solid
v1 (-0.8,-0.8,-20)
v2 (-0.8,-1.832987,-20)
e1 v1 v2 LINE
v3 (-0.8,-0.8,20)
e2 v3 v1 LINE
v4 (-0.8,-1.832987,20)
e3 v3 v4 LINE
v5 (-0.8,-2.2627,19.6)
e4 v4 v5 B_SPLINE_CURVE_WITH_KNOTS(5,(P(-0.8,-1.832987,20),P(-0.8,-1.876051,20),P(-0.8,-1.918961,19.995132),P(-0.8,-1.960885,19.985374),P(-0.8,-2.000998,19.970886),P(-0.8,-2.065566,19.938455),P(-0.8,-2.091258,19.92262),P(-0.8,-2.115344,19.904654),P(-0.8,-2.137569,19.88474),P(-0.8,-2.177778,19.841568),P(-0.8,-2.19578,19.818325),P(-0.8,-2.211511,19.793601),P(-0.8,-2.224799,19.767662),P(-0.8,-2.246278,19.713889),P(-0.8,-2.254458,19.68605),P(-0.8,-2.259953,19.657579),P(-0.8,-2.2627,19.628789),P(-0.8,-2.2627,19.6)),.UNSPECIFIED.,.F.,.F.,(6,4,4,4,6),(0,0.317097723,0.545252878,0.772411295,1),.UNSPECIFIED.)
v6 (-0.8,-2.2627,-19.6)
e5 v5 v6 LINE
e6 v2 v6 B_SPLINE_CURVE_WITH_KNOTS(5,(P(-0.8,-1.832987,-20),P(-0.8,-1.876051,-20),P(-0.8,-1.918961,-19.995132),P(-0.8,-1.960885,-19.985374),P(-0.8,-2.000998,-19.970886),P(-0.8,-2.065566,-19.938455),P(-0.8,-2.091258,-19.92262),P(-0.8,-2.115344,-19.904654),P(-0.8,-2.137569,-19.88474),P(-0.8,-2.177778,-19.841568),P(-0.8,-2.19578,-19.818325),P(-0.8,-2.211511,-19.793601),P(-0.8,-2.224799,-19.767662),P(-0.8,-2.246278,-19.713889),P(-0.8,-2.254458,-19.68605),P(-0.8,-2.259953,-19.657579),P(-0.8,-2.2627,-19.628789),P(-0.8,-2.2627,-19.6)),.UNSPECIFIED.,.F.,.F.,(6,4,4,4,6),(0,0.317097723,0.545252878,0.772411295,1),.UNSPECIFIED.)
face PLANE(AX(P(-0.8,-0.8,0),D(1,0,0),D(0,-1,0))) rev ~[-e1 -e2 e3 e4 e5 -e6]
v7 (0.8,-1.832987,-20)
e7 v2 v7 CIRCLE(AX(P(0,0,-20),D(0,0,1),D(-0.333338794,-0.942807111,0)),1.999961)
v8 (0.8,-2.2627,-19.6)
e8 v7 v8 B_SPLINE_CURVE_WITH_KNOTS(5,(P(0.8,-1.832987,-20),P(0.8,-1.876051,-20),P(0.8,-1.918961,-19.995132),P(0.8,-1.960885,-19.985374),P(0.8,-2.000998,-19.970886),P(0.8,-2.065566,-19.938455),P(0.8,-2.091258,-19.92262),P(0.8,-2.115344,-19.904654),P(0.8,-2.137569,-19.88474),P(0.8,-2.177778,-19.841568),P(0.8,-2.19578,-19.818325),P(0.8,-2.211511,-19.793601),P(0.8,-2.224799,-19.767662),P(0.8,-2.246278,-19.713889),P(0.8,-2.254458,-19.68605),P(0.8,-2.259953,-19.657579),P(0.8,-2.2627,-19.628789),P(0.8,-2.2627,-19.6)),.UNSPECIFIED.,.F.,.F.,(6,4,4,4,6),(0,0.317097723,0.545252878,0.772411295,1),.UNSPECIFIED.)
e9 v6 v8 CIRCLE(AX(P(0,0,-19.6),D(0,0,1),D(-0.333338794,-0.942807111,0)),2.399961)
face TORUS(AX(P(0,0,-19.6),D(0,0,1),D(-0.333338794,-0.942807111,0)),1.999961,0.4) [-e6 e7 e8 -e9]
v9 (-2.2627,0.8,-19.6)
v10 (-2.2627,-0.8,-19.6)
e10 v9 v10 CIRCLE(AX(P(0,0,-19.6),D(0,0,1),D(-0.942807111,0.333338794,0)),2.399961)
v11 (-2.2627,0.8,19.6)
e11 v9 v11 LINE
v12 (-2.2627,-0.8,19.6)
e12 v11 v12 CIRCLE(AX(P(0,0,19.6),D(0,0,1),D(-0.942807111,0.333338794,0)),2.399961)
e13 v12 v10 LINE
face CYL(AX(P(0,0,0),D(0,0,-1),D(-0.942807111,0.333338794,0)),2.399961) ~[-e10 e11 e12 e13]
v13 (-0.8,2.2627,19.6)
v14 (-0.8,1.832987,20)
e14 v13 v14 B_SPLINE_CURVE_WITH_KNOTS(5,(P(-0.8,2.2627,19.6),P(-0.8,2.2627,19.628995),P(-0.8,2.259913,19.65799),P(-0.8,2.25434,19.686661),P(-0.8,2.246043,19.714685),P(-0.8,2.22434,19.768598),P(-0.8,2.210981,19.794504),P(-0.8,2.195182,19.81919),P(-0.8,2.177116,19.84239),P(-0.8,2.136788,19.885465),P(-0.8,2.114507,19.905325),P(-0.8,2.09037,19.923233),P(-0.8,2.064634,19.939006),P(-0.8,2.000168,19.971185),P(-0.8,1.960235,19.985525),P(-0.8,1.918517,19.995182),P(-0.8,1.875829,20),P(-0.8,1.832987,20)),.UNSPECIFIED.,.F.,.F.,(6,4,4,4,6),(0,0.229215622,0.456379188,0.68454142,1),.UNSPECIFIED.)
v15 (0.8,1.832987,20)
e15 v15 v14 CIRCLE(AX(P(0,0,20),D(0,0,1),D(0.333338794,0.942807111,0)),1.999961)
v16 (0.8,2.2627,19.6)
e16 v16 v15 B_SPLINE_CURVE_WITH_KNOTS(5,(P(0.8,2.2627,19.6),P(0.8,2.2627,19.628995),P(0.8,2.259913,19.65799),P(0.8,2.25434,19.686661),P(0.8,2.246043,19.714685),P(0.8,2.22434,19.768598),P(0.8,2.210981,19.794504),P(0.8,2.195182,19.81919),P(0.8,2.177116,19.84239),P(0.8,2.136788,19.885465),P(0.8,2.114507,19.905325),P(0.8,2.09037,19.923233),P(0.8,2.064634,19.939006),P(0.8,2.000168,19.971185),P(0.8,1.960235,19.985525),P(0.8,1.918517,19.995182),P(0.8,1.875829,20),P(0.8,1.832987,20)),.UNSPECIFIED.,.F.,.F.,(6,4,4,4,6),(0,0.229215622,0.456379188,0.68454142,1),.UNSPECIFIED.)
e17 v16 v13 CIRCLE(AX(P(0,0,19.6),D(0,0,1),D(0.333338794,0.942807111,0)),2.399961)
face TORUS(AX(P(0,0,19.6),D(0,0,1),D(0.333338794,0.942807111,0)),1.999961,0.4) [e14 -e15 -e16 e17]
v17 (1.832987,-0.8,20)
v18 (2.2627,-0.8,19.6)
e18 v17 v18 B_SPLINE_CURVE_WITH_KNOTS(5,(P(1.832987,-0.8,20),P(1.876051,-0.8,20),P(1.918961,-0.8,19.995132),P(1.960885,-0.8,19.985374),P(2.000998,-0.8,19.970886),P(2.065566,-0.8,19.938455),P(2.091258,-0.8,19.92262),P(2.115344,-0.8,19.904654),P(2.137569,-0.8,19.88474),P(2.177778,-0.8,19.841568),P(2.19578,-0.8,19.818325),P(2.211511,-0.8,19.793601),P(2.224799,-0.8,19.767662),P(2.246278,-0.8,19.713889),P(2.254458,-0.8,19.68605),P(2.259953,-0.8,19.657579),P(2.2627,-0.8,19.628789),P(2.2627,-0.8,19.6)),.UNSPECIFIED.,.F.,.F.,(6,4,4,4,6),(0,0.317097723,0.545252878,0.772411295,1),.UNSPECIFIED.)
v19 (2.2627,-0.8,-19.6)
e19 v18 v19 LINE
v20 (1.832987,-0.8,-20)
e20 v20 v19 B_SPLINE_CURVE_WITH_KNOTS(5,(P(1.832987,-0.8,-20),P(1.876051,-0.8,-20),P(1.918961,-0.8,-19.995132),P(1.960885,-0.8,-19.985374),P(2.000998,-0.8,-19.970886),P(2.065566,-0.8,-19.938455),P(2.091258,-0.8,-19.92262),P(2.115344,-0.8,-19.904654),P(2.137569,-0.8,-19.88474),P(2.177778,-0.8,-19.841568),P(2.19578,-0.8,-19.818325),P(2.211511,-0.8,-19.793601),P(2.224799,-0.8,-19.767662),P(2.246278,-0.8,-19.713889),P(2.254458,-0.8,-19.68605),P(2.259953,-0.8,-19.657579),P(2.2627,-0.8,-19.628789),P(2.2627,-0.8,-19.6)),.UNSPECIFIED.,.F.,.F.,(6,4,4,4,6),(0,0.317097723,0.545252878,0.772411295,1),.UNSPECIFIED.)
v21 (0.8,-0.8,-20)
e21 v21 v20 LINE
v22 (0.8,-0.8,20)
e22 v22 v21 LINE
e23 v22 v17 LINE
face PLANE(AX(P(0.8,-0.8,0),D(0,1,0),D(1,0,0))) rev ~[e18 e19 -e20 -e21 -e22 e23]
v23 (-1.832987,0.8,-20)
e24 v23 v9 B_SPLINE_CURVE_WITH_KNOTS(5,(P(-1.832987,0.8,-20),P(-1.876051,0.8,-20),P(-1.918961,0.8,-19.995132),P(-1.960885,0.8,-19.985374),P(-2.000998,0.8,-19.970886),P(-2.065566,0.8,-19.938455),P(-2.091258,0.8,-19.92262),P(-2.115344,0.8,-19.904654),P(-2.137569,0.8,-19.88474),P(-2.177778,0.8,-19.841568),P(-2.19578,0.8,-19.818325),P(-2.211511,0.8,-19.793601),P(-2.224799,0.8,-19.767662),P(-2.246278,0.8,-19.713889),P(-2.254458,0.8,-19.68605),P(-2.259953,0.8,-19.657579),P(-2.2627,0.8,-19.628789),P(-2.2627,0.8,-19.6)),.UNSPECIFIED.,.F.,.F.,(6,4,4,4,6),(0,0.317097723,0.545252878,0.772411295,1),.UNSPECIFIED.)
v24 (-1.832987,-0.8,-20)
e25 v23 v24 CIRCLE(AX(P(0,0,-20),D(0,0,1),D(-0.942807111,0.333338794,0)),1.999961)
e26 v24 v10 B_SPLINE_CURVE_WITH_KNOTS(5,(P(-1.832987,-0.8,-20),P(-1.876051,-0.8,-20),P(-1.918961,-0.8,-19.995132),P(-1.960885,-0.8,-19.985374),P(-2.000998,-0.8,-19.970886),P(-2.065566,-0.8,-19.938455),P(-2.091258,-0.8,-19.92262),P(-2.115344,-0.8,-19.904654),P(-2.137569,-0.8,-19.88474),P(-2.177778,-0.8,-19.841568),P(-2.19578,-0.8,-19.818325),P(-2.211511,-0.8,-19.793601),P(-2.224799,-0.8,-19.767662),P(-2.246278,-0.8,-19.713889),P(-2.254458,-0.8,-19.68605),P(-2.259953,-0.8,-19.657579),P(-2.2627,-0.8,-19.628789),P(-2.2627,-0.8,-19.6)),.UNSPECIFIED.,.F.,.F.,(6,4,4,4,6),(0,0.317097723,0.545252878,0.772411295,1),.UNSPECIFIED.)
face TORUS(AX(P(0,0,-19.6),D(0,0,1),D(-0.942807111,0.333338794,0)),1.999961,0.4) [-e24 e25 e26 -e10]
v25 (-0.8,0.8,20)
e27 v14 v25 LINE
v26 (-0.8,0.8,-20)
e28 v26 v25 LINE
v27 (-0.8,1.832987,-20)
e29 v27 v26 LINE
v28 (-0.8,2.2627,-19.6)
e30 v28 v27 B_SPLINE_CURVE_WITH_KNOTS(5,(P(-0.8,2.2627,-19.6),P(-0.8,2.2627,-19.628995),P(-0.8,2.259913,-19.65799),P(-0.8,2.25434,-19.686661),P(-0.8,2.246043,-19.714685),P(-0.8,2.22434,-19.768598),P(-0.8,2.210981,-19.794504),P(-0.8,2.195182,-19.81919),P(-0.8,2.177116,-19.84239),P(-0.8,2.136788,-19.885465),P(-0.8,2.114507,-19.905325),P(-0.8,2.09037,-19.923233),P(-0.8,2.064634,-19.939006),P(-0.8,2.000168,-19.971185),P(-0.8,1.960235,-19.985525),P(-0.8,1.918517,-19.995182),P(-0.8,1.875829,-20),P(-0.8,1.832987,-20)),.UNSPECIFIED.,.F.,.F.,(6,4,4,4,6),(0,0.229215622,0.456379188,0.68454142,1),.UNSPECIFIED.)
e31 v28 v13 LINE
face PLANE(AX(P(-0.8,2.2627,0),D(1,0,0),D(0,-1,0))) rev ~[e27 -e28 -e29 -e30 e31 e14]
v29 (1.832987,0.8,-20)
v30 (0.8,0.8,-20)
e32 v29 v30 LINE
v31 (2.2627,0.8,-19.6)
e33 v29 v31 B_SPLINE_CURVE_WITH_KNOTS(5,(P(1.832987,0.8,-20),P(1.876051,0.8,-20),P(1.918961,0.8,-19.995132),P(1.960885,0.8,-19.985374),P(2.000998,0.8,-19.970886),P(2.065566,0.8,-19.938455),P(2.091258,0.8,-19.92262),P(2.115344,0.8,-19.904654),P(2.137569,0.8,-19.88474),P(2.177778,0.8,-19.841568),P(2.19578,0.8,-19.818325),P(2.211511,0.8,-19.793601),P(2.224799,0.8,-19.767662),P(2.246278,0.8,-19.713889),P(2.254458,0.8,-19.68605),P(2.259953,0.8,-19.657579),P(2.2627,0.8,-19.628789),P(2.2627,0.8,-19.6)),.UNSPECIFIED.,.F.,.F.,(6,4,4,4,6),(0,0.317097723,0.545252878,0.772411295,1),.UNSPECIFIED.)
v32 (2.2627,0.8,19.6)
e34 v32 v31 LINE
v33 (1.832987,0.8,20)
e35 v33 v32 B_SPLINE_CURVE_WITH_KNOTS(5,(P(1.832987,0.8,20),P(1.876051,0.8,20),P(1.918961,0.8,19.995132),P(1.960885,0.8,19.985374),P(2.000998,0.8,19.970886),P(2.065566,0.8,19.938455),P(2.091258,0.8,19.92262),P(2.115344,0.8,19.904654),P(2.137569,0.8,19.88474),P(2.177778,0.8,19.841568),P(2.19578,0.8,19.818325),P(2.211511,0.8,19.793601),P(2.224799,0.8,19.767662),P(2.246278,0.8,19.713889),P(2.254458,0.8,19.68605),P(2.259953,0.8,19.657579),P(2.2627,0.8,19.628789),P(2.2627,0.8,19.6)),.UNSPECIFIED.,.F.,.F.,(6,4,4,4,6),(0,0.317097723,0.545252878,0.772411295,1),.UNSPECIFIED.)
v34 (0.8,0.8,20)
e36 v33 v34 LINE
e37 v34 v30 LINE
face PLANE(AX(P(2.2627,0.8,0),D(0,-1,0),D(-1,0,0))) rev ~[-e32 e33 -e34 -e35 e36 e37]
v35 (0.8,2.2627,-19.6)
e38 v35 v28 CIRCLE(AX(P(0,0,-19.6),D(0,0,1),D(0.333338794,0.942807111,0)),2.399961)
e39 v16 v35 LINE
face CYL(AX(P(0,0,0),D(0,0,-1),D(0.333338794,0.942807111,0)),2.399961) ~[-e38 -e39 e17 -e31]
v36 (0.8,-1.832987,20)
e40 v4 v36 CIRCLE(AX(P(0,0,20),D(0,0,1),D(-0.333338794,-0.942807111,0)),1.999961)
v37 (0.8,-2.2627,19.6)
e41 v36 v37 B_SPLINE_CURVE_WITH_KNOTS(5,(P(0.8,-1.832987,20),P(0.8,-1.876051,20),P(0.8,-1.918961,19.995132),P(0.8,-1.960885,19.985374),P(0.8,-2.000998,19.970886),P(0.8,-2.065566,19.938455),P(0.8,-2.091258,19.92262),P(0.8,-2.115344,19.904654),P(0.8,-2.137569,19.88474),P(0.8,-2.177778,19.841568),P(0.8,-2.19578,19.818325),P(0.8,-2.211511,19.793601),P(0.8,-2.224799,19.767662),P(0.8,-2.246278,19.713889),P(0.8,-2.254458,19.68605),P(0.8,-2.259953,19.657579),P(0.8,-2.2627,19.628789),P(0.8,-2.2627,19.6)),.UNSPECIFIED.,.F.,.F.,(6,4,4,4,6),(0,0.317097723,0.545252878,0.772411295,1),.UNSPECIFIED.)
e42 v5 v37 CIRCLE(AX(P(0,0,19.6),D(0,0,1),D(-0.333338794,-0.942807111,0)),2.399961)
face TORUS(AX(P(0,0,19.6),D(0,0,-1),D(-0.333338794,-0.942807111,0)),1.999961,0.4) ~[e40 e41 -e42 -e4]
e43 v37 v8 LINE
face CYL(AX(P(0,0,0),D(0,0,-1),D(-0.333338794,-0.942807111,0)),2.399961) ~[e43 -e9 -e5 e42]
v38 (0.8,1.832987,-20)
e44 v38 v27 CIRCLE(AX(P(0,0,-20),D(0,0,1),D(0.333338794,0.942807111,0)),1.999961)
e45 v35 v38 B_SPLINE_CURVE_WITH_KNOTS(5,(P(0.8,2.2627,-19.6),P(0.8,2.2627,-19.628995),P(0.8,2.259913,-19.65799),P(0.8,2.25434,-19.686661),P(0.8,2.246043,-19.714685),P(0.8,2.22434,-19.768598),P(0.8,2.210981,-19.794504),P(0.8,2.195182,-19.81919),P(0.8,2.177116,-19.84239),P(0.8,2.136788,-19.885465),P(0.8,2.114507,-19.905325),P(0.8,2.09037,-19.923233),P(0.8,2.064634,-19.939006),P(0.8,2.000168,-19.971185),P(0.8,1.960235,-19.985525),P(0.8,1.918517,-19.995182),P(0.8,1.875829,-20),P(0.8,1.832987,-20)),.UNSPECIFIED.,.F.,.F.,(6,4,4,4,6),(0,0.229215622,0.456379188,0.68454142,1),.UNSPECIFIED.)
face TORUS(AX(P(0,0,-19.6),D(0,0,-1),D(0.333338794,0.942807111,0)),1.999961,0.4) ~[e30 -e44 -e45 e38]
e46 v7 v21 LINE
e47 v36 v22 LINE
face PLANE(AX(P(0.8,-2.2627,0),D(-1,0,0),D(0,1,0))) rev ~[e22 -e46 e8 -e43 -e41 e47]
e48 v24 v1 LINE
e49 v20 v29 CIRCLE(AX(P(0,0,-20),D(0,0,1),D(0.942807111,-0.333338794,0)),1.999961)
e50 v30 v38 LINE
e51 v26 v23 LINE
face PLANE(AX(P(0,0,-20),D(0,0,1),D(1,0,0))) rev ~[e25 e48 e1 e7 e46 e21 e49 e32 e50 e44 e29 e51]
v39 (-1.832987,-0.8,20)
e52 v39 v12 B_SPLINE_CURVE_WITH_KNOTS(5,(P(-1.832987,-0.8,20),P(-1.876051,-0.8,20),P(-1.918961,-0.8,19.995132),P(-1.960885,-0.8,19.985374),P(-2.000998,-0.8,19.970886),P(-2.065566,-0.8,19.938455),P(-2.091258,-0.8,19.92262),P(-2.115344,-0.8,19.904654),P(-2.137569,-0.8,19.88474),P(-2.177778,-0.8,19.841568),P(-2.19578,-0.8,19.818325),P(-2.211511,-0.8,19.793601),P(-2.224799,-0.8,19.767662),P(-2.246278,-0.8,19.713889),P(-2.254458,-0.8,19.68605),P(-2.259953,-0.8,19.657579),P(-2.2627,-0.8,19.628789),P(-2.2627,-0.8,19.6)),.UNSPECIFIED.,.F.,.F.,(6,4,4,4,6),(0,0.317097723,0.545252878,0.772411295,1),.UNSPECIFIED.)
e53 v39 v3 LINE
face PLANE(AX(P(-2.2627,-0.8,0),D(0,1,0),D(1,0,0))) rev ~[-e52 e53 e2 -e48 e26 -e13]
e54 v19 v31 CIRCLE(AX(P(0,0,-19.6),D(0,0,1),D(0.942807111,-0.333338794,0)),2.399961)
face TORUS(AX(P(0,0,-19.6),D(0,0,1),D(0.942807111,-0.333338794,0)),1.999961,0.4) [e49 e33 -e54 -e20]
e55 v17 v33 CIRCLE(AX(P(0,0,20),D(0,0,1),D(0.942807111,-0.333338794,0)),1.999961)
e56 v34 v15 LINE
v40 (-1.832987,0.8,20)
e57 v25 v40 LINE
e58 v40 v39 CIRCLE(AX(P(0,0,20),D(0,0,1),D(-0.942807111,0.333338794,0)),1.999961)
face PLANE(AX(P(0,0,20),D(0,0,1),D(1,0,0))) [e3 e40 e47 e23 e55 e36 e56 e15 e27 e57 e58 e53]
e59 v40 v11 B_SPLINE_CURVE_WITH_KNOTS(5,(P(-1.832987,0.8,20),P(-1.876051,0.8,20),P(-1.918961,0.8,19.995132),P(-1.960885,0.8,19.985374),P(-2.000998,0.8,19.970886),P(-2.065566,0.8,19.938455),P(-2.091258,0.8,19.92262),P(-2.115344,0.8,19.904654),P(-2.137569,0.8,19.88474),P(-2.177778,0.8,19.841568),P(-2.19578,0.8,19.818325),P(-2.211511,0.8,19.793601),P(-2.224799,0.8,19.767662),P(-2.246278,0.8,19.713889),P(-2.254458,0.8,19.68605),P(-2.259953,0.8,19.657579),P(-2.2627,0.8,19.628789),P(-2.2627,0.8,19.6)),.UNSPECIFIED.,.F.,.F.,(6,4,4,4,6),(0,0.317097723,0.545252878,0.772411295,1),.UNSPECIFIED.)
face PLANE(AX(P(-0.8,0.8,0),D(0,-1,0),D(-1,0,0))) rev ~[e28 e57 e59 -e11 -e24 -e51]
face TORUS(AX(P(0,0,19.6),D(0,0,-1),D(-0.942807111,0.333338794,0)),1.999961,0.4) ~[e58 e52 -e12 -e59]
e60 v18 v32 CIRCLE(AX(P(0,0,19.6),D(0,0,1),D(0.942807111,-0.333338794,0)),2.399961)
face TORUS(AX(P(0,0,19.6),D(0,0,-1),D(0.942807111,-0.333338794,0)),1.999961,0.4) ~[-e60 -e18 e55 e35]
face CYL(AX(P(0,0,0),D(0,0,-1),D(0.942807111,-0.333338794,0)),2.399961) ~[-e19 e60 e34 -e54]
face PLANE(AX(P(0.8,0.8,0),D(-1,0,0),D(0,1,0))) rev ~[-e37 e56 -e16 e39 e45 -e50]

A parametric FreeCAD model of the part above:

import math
import FreeCAD as App
import Part
import Sketcher


def edges_at(feature, points):
    """Names of the edges that pass closest to the given points."""
    edges = feature.Shape.Edges
    near = lambda p: min(range(len(edges)), key=lambda i: edges[i].distToShape(Part.Vertex(*p))[0])
    return sorted({f"Edge{near(p) + 1}" for p in points})

doc = App.newDocument("Part")
params = doc.addObject("Spreadsheet::Sheet", "Params")
for row, (alias, value) in enumerate([
    ("sketch1_radius", "2.4 mm"),
    ("pad1_length", "40 mm"),
    ("fillet_radius", "0.4 mm"),
], start=1):
    params.set(f"A{row}", alias)
    params.set(f"B{row}", "=" + value)
    params.setAlias(f"B{row}", alias)

body = doc.addObject("PartDesign::Body", "Body")

# Sketch on XY plane
sketch1 = body.newObject("Sketcher::SketchObject", "Sketch")
sketch1.AttachmentSupport = (doc.getObject("XY_Plane"), [""])
sketch1.MapMode = "FlatFace"
sketch1.addGeometry(Part.ArcOfCircle(Part.Circle(App.Vector(0, 0, 0), App.Vector(0, 0, 1), 2.4), math.radians(71), math.radians(109)), False)
sketch1.addGeometry(Part.LineSegment(App.Vector(-0.8, 2.3, 0), App.Vector(-0.8, 0.8, 0)), False)
sketch1.addGeometry(Part.LineSegment(App.Vector(-0.8, 0.8, 0), App.Vector(-2.3, 0.8, 0)), False)
sketch1.addGeometry(Part.ArcOfCircle(Part.Circle(App.Vector(0, 0, 0), App.Vector(0, 0, 1), 2.4), math.radians(161), math.radians(199)), False)
sketch1.addGeometry(Part.LineSegment(App.Vector(-2.3, -0.8, 0), App.Vector(-0.8, -0.8, 0)), False)
sketch1.addGeometry(Part.LineSegment(App.Vector(-0.8, -0.8, 0), App.Vector(-0.8, -2.3, 0)), False)
sketch1.addGeometry(Part.ArcOfCircle(Part.Circle(App.Vector(0, 0, 0), App.Vector(0, 0, 1), 2.4), math.radians(-109), math.radians(-71)), False)
sketch1.addGeometry(Part.LineSegment(App.Vector(0.8, -2.3, 0), App.Vector(0.8, -0.8, 0)), False)
sketch1.addGeometry(Part.LineSegment(App.Vector(0.8, -0.8, 0), App.Vector(2.3, -0.8, 0)), False)
sketch1.addGeometry(Part.ArcOfCircle(Part.Circle(App.Vector(0, 0, 0), App.Vector(0, 0, 1), 2.4), math.radians(-19), math.radians(19)), False)
sketch1.addGeometry(Part.LineSegment(App.Vector(2.3, 0.8, 0), App.Vector(0.8, 0.8, 0)), False)
sketch1.addGeometry(Part.LineSegment(App.Vector(0.8, 0.8, 0), App.Vector(0.8, 2.3, 0)), False)
sketch1.addConstraint(Sketcher.Constraint("Coincident", 0, 2, 1, 1))
sketch1.addConstraint(Sketcher.Constraint("Coincident", 1, 2, 2, 1))
sketch1.addConstraint(Sketcher.Constraint("Coincident", 2, 2, 3, 1))
sketch1.addConstraint(Sketcher.Constraint("Coincident", 3, 2, 4, 1))
sketch1.addConstraint(Sketcher.Constraint("Coincident", 4, 2, 5, 1))
sketch1.addConstraint(Sketcher.Constraint("Coincident", 5, 2, 6, 1))
sketch1.addConstraint(Sketcher.Constraint("Coincident", 6, 2, 7, 1))
sketch1.addConstraint(Sketcher.Constraint("Coincident", 7, 2, 8, 1))
sketch1.addConstraint(Sketcher.Constraint("Coincident", 8, 2, 9, 1))
sketch1.addConstraint(Sketcher.Constraint("Coincident", 9, 2, 10, 1))
sketch1.addConstraint(Sketcher.Constraint("Coincident", 10, 2, 11, 1))
sketch1.addConstraint(Sketcher.Constraint("Coincident", 11, 2, 0, 1))
sketch1.addConstraint(Sketcher.Constraint("Vertical", 1))
sketch1.addConstraint(Sketcher.Constraint("Horizontal", 2))
sketch1.addConstraint(Sketcher.Constraint("Horizontal", 4))
sketch1.addConstraint(Sketcher.Constraint("Vertical", 5))
sketch1.addConstraint(Sketcher.Constraint("Vertical", 7))
sketch1.addConstraint(Sketcher.Constraint("Horizontal", 8))
sketch1.addConstraint(Sketcher.Constraint("Horizontal", 10))
sketch1.addConstraint(Sketcher.Constraint("Vertical", 11))
sketch1.addConstraint(Sketcher.Constraint("Coincident", 0, 3, -1, 1))
sketch1.addConstraint(Sketcher.Constraint("Coincident", 3, 3, -1, 1))
sketch1.addConstraint(Sketcher.Constraint("Coincident", 6, 3, -1, 1))
sketch1.addConstraint(Sketcher.Constraint("Coincident", 9, 3, -1, 1))
sketch1.addConstraint(Sketcher.Constraint("Equal", 0, 3))
sketch1.addConstraint(Sketcher.Constraint("Equal", 3, 6))
sketch1.addConstraint(Sketcher.Constraint("Equal", 6, 9))
sketch1.addConstraint(Sketcher.Constraint("Symmetric", 1, 2, 7, 2, -1, 1))
sketch1.addConstraint(Sketcher.Constraint("Symmetric", 4, 2, 10, 2, -1, 1))
sketch1.addConstraint(Sketcher.Constraint("Symmetric", 4, 2, 7, 2, -2))
sketch1.addConstraint(Sketcher.Constraint("Equal", 10, 1))
sketch1.addConstraint(Sketcher.Constraint("Radius", 0, 2.4))
sketch1.addConstraint(Sketcher.Constraint("DistanceY", 3, 2, 2, 2, 1.6))
sketch1.setExpression("Constraints[31]", "Params.sketch1_radius")
pad1 = body.newObject("PartDesign::Pad", "Pad")
pad1.Profile = sketch1
pad1.setExpression("Length", "Params.pad1_length")
pad1.Midplane = True
doc.recompute()

fillet = body.newObject("PartDesign::Fillet", "Fillet")
fillet.Base = (pad1, edges_at(pad1, [
    (0, 2.4, 20),
    (-2.4, 0, 20),
    (0, -2.4, 20),
    (2.4, 0, 20),
    (2.4, 0, -20),
    (0, 2.4, -20),
    (-2.4, 0, -20),
    (0, -2.4, -20),
]))
fillet.setExpression("Radius", "Params.fillet_radius")

doc.recompute()
